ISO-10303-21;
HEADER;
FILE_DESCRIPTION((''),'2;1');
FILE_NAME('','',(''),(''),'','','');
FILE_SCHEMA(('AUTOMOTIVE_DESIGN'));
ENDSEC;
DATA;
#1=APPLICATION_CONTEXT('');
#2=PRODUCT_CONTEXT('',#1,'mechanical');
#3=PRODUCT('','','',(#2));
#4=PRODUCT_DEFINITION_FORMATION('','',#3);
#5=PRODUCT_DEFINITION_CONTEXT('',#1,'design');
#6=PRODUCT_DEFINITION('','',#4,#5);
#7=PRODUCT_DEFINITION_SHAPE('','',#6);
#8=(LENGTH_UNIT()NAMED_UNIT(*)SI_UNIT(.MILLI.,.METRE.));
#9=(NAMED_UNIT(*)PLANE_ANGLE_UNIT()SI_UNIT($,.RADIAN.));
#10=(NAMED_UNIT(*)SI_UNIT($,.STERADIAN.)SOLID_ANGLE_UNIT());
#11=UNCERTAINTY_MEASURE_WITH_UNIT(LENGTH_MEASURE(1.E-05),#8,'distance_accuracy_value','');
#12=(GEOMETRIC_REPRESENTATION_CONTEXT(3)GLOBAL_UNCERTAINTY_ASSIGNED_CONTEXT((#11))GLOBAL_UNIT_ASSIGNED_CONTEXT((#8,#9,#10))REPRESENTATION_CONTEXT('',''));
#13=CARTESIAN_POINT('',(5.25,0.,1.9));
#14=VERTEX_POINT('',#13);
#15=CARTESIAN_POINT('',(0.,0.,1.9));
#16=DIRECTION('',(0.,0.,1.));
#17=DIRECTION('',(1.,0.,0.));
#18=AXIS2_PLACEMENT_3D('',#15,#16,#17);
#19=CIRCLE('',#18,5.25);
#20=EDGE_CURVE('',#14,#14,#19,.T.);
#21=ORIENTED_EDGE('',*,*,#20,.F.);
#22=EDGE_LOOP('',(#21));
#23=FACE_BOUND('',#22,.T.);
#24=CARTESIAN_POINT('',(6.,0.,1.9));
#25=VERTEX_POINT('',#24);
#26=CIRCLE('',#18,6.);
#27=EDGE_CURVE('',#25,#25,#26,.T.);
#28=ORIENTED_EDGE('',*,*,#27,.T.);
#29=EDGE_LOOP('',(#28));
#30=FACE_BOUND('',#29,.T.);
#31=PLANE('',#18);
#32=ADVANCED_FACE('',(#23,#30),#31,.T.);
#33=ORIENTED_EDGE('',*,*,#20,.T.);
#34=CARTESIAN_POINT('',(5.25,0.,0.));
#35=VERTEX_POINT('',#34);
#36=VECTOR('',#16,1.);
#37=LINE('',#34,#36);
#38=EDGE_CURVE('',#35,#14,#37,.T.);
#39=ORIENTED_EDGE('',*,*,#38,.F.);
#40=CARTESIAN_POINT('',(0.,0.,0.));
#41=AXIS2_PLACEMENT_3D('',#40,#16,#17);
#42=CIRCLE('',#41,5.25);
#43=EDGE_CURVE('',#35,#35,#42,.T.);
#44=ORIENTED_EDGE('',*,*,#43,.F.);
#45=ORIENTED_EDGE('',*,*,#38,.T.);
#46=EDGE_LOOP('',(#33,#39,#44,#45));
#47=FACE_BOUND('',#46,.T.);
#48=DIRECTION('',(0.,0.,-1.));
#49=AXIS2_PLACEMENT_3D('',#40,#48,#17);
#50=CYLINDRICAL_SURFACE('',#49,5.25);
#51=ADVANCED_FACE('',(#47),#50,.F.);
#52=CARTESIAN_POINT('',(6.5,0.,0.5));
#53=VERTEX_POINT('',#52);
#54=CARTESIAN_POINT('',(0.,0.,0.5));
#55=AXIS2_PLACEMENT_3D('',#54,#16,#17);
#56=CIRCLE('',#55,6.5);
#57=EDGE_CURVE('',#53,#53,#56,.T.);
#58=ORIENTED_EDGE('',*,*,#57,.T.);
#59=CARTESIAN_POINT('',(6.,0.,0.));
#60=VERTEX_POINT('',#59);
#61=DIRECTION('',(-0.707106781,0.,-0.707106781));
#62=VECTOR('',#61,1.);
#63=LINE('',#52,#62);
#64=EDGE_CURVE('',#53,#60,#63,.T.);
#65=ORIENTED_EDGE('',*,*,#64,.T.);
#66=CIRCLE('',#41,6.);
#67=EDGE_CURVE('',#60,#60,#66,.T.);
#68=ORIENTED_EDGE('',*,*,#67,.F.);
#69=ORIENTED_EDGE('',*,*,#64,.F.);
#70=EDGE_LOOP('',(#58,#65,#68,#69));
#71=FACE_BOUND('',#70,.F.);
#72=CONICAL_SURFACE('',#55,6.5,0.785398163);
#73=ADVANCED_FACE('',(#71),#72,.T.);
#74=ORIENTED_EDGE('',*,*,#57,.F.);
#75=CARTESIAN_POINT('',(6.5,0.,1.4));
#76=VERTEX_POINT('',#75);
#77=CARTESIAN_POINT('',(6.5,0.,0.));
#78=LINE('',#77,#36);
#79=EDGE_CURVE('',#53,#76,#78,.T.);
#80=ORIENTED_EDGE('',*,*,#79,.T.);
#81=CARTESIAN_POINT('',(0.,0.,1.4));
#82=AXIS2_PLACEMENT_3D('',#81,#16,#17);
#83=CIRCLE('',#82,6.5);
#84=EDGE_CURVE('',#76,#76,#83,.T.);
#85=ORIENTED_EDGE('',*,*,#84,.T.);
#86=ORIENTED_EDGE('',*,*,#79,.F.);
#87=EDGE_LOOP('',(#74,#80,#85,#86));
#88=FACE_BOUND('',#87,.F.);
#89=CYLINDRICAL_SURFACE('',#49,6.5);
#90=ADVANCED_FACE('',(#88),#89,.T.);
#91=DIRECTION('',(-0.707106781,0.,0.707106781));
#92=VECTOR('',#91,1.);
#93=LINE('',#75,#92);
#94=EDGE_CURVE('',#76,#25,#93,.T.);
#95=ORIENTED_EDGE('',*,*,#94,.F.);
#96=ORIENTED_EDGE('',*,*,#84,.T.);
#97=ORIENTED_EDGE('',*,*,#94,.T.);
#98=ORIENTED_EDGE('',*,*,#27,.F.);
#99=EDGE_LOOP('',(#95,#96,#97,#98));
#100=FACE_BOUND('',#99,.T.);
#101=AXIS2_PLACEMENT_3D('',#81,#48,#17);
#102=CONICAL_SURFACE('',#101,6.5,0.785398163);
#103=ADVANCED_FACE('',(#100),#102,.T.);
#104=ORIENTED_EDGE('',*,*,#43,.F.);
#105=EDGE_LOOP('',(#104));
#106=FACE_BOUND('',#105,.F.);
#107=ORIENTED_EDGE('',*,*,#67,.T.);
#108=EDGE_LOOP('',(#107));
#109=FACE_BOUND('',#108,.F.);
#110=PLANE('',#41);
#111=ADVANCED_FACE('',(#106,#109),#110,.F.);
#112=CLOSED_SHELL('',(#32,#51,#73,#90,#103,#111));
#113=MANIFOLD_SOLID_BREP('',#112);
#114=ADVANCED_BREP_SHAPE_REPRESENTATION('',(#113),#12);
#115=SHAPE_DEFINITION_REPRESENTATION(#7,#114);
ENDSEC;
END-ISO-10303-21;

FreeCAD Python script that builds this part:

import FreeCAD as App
import Part
import Sketcher
from FreeCAD import Vector


def edges_at(feature, points):
    """Names of the edges that pass closest to the given points."""
    edges = feature.Shape.Edges
    near = lambda p: min(range(len(edges)), key=lambda i: edges[i].distToShape(Part.Vertex(*p))[0])
    return sorted({f"Edge{near(p) + 1}" for p in points})

doc = App.newDocument("Part")
body = doc.addObject("PartDesign::Body", "Body")

# Sketch on XY plane
sketch1 = body.newObject("Sketcher::SketchObject", "Sketch")
sketch1.AttachmentSupport = (doc.getObject("XY_Plane"), [""])
sketch1.MapMode = "FlatFace"
sketch1.addGeometry([
    Part.Circle(Vector(0, 0, 0), Vector(0, 0, 1), 6),
    Part.Circle(Vector(0, 0, 0), Vector(0, 0, 1), 5),
], False)
sketch1.addConstraint([
    Sketcher.Constraint("Coincident", 0, 3, -1, 1),
    Sketcher.Constraint("Coincident", 1, 3, -1, 1),
    Sketcher.Constraint("Diameter", 0, 13.0),
    Sketcher.Constraint("Diameter", 1, 10.5),
])
pad1 = body.newObject("PartDesign::Pad", "Pad")
pad1.Profile = sketch1
pad1.Length = 1.9
doc.recompute()

chamfer = body.newObject("PartDesign::Chamfer", "Chamfer")
chamfer.Base = (pad1, edges_at(pad1, [(-6.5, 0, 1.9), (-6.5, 0, 0)]))
chamfer.Size = 0.5

doc.recompute()
